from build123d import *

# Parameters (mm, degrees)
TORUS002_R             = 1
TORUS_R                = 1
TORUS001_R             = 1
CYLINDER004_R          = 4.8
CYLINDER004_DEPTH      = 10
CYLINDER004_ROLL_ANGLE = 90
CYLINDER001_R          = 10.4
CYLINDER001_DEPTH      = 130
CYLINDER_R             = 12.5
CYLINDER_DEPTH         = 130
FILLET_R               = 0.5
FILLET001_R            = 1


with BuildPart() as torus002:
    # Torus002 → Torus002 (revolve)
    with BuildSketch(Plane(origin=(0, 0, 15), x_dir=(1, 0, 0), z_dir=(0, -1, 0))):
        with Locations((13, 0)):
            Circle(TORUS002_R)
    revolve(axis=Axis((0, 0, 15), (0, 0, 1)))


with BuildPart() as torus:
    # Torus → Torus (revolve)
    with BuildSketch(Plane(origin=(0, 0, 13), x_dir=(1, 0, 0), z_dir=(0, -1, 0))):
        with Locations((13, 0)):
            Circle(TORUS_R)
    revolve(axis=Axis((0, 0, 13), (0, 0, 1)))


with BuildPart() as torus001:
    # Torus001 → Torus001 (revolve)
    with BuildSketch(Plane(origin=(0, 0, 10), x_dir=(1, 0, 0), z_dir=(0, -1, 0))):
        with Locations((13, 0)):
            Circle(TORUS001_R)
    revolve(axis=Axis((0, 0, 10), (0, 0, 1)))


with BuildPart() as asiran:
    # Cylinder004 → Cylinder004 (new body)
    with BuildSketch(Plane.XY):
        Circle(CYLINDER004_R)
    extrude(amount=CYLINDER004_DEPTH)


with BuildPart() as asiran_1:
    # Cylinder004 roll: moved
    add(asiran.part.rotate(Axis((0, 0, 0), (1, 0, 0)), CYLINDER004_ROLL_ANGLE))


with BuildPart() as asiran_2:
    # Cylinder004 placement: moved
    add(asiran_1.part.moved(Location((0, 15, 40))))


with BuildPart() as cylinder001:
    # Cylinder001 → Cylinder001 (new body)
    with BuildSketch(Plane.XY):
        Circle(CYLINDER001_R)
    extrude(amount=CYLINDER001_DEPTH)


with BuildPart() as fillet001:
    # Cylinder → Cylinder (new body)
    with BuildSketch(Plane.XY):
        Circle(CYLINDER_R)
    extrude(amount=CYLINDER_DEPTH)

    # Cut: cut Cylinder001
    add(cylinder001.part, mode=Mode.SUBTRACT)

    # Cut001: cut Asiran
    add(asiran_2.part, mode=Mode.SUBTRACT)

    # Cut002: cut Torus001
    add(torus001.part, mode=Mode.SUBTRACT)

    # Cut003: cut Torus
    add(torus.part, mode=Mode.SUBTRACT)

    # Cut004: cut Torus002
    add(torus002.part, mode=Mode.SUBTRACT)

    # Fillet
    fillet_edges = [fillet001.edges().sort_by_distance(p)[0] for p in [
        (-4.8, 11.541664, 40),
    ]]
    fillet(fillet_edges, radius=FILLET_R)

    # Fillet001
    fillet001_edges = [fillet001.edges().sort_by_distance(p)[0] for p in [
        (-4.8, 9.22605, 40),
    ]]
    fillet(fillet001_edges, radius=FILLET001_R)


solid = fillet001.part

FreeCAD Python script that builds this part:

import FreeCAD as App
import Part
import Sketcher

V = App.Vector


def edges_at(feature, points):
    """Names of the edges that pass closest to the given points."""
    edges = feature.Shape.Edges
    near = lambda p: min(range(len(edges)), key=lambda i: edges[i].distToShape(Part.Vertex(*p))[0])
    return sorted({f"Edge{near(p) + 1}" for p in points})

doc = App.newDocument("Part")
params = doc.addObject("Spreadsheet::Sheet", "Params")
for row, (alias, value) in enumerate([
    ("sketch1_diameter", "2 mm"),
    ("revolution_angle", "360 deg"),
    ("sketch2_diameter", "2 mm"),
    ("revolution2_angle", "360 deg"),
    ("sketch3_diameter", "2 mm"),
    ("revolution3_angle", "360 deg"),
    ("sketch4_diameter", "9.6 mm"),
    ("pad1_length", "10 mm"),
    ("sketch5_diameter", "20.8 mm"),
    ("pad2_length", "130 mm"),
    ("sketch6_diameter", "25 mm"),
    ("pad3_length", "130 mm"),
    ("fillet_radius", "0.5 mm"),
    ("fillet2_radius", "1 mm"),
], start=1):
    params.set(f"A{row}", alias)
    params.set(f"B{row}", "=" + value)
    params.setAlias(f"B{row}", alias)

body = doc.addObject("PartDesign::Body", "Body")

# Sketch on XZ plane
sketch1 = doc.addObject("Sketcher::SketchObject", "Sketch")
body.addObject(sketch1)
sketch1.AttachmentSupport = (doc.XZ_Plane, [""])
sketch1.MapMode = "FlatFace"
sketch1.addGeometry(Part.Circle(V(13, 15, 0), V(0, 0, 1), 1), False)
sketch1.addConstraint([
    Sketcher.Constraint("Diameter", 0, 2.0),
    Sketcher.Constraint("DistanceX", -1, 1, 0, 3, 13.0),
    Sketcher.Constraint("DistanceY", -1, 1, 0, 3, 15.0),
])
sketch1.setExpression("Constraints[0]", "Params.sketch1_diameter")
revolution = doc.addObject("PartDesign::Revolution", "Revolution")
body.addObject(revolution)
revolution.Profile = sketch1
revolution.ReferenceAxis = (sketch1, ["V_Axis"])
revolution.setExpression("Angle", "Params.revolution_angle")
body2 = doc.addObject("PartDesign::Body", "Body001")

# Sketch on XZ plane
sketch2 = doc.addObject("Sketcher::SketchObject", "Sketch001")
body2.addObject(sketch2)
sketch2.AttachmentSupport = (doc.getObject("XZ_Plane001"), [""])
sketch2.MapMode = "FlatFace"
sketch2.addGeometry(Part.Circle(V(13, 13, 0), V(0, 0, 1), 1), False)
sketch2.addConstraint([
    Sketcher.Constraint("Diameter", 0, 2.0),
    Sketcher.Constraint("DistanceX", -1, 1, 0, 3, 13.0),
    Sketcher.Constraint("DistanceY", -1, 1, 0, 3, 13.0),
])
sketch2.setExpression("Constraints[0]", "Params.sketch2_diameter")
revolution2 = doc.addObject("PartDesign::Revolution", "Revolution001")
body2.addObject(revolution2)
revolution2.Profile = sketch2
revolution2.ReferenceAxis = (sketch2, ["V_Axis"])
revolution2.setExpression("Angle", "Params.revolution2_angle")
body3 = doc.addObject("PartDesign::Body", "Body002")

# Sketch on XZ plane
sketch3 = doc.addObject("Sketcher::SketchObject", "Sketch002")
body3.addObject(sketch3)
sketch3.AttachmentSupport = (doc.getObject("XZ_Plane002"), [""])
sketch3.MapMode = "FlatFace"
sketch3.addGeometry(Part.Circle(V(13, 10, 0), V(0, 0, 1), 1), False)
sketch3.addConstraint([
    Sketcher.Constraint("Diameter", 0, 2.0),
    Sketcher.Constraint("DistanceX", -1, 1, 0, 3, 13.0),
    Sketcher.Constraint("DistanceY", -1, 1, 0, 3, 10.0),
])
sketch3.setExpression("Constraints[0]", "Params.sketch3_diameter")
revolution3 = doc.addObject("PartDesign::Revolution", "Revolution002")
body3.addObject(revolution3)
revolution3.Profile = sketch3
revolution3.ReferenceAxis = (sketch3, ["V_Axis"])
revolution3.setExpression("Angle", "Params.revolution3_angle")
body4 = doc.addObject("PartDesign::Body", "Body003")

# Sketch on XY plane
sketch4 = doc.addObject("Sketcher::SketchObject", "Sketch003")
body4.addObject(sketch4)
sketch4.AttachmentSupport = (doc.getObject("XY_Plane003"), [""])
sketch4.MapMode = "FlatFace"
sketch4.addGeometry(Part.Circle(V(0, 0, 0), V(0, 0, 1), 4.8), False)
sketch4.addConstraint([
    Sketcher.Constraint("Coincident", 0, 3, -1, 1),
    Sketcher.Constraint("Diameter", 0, 9.6),
])
sketch4.setExpression("Constraints[1]", "Params.sketch4_diameter")
pad1 = doc.addObject("PartDesign::Pad", "Pad")
body4.addObject(pad1)
pad1.Profile = sketch4
pad1.setExpression("Length", "Params.pad1_length")
body5 = doc.addObject("PartDesign::Body", "Body004")
doc.recompute()

body4.Placement = App.Placement(V(0, 0, 0), App.Rotation(V(1, 0, 0), 90))
boolean = doc.addObject("PartDesign::Boolean", "Boolean")
body5.addObject(boolean)
boolean.Type = "Fuse"
boolean.addObjects([body4])
body6 = doc.addObject("PartDesign::Body", "Body005")
doc.recompute()

body5.Placement = App.Placement(V(0, 15, 40), App.Rotation(V(0, 0, 1), 0))
boolean2 = doc.addObject("PartDesign::Boolean", "Boolean001")
body6.addObject(boolean2)
boolean2.Type = "Fuse"
boolean2.addObjects([body5])
body7 = doc.addObject("PartDesign::Body", "Body006")

# Sketch on XY plane
sketch5 = doc.addObject("Sketcher::SketchObject", "Sketch004")
body7.addObject(sketch5)
sketch5.AttachmentSupport = (doc.getObject("XY_Plane006"), [""])
sketch5.MapMode = "FlatFace"
sketch5.addGeometry(Part.Circle(V(0, 0, 0), V(0, 0, 1), 10), False)
sketch5.addConstraint([
    Sketcher.Constraint("Coincident", 0, 3, -1, 1),
    Sketcher.Constraint("Diameter", 0, 20.8),
])
sketch5.setExpression("Constraints[1]", "Params.sketch5_diameter")
pad2 = doc.addObject("PartDesign::Pad", "Pad001")
body7.addObject(pad2)
pad2.Profile = sketch5
pad2.setExpression("Length", "Params.pad2_length")
body8 = doc.addObject("PartDesign::Body", "Body007")

# Sketch on XY plane
sketch6 = doc.addObject("Sketcher::SketchObject", "Sketch005")
body8.addObject(sketch6)
sketch6.AttachmentSupport = (doc.getObject("XY_Plane007"), [""])
sketch6.MapMode = "FlatFace"
sketch6.addGeometry(Part.Circle(V(0, 0, 0), V(0, 0, 1), 12), False)
sketch6.addConstraint([
    Sketcher.Constraint("Coincident", 0, 3, -1, 1),
    Sketcher.Constraint("Diameter", 0, 25.0),
])
sketch6.setExpression("Constraints[1]", "Params.sketch6_diameter")
pad3 = doc.addObject("PartDesign::Pad", "Pad002")
body8.addObject(pad3)
pad3.Profile = sketch6
pad3.setExpression("Length", "Params.pad3_length")
doc.recompute()

boolean3 = doc.addObject("PartDesign::Boolean", "Boolean002")
body8.addObject(boolean3)
boolean3.Type = "Cut"
boolean3.addObjects([body7])
doc.recompute()

boolean4 = doc.addObject("PartDesign::Boolean", "Boolean003")
body8.addObject(boolean4)
boolean4.Type = "Cut"
boolean4.addObjects([body6])
doc.recompute()

boolean5 = doc.addObject("PartDesign::Boolean", "Boolean004")
body8.addObject(boolean5)
boolean5.Type = "Cut"
boolean5.addObjects([body3])
doc.recompute()

boolean6 = doc.addObject("PartDesign::Boolean", "Boolean005")
body8.addObject(boolean6)
boolean6.Type = "Cut"
boolean6.addObjects([body2])
doc.recompute()

boolean7 = doc.addObject("PartDesign::Boolean", "Boolean006")
body8.addObject(boolean7)
boolean7.Type = "Cut"
boolean7.addObjects([body])
doc.recompute()

fillet = doc.addObject("PartDesign::Fillet", "Fillet")
body8.addObject(fillet)
fillet.Base = (boolean7, edges_at(boolean7, [(-4.8, 11.542, 40)]))
fillet.setExpression("Radius", "Params.fillet_radius")
doc.recompute()

fillet2 = doc.addObject("PartDesign::Fillet", "Fillet001")
body8.addObject(fillet2)
fillet2.Base = (fillet, edges_at(fillet, [(-4.8, 9.226, 40)]))
fillet2.setExpression("Radius", "Params.fillet2_radius")

doc.recompute()
